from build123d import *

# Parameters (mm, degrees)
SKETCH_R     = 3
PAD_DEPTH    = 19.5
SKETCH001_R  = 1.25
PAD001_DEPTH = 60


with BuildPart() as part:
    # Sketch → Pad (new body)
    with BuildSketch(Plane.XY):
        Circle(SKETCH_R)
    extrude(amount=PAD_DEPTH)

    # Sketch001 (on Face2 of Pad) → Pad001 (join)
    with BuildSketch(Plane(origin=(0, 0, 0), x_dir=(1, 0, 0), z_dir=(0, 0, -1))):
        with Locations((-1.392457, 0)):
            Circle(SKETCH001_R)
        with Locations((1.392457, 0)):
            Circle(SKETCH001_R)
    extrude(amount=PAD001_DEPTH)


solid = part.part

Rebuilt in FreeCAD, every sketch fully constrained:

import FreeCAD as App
import Part
import Sketcher

doc = App.newDocument("Part")
body = doc.addObject("PartDesign::Body", "Body")

sketch1 = body.newObject("Sketcher::SketchObject", "Sketch")
sketch1.AttachmentSupport = (doc.getObject("XY_Plane"), [""])
sketch1.MapMode = "FlatFace"
sketch1.addGeometry(Part.Circle(App.Vector(0, 0, 0), App.Vector(0, 0, 1), 3), False)
sketch1.addConstraint(Sketcher.Constraint("Coincident", 0, 3, -1, 1))
sketch1.addConstraint(Sketcher.Constraint("Diameter", 0, 6.0))
pad1 = body.newObject("PartDesign::Pad", "Pad")
pad1.Profile = sketch1
pad1.Length = 19.5

sketch2 = body.newObject("Sketcher::SketchObject", "Sketch001")
sketch2.AttachmentSupport = (doc.getObject("XY_Plane"), [""])
sketch2.MapMode = "FlatFace"
sketch2.addGeometry(Part.Circle(App.Vector(-1.392457, 0, 0), App.Vector(0, 0, 1), 1.25), False)
sketch2.addGeometry(Part.Circle(App.Vector(1.392457, 0, 0), App.Vector(0, 0, 1), 1.25), False)
sketch2.addConstraint(Sketcher.Constraint("Equal", 0, 1))
sketch2.addConstraint(Sketcher.Constraint("Symmetric", 0, 3, 1, 3, -1, 1))
sketch2.addConstraint(Sketcher.Constraint("PointOnObject", 0, 3, -1))
sketch2.addConstraint(Sketcher.Constraint("Diameter", 0, 2.5))
sketch2.addConstraint(Sketcher.Constraint("DistanceX", 0, 3, -1, 1, 1.392457))
pad2 = body.newObject("PartDesign::Pad", "Pad001")
pad2.Profile = sketch2
pad2.Length = 60
pad2.Reversed = True

doc.recompute()
